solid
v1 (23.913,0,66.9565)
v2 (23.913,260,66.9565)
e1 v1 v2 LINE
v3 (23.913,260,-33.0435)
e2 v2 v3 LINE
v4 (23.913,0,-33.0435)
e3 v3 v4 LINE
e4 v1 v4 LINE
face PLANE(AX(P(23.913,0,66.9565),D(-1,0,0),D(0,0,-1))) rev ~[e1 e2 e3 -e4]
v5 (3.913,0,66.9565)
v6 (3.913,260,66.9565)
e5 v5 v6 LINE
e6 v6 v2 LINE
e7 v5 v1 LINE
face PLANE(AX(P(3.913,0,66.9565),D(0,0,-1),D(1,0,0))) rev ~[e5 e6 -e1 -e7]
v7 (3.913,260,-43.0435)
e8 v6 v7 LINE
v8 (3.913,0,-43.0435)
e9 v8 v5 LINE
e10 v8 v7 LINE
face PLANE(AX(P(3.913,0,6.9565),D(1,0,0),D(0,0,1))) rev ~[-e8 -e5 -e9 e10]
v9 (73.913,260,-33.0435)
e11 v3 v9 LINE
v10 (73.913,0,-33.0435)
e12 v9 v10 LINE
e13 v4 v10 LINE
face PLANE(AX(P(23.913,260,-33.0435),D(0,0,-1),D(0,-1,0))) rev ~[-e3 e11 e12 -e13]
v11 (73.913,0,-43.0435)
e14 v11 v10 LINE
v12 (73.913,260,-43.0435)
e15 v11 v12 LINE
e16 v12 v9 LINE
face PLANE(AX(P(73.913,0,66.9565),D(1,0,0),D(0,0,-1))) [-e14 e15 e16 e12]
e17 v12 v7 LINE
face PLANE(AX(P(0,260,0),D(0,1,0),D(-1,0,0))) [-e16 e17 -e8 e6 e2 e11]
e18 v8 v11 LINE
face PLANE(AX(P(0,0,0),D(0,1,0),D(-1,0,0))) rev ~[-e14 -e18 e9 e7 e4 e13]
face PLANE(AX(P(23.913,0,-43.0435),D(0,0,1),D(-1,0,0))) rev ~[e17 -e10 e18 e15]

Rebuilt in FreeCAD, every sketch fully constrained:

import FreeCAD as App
import Part
import Sketcher
from FreeCAD import Vector


def add_polygon(sketch, points):
    """Adds a closed chain of lines whose ends are joined by coincident constraints."""
    first, n = sketch.GeometryCount, len(points)
    for a, b in zip(points, points[1:] + points[:1]):
        sketch.addGeometry(Part.LineSegment(App.Vector(*a, 0), App.Vector(*b, 0)), False)
    for i in range(n):
        sketch.addConstraint(Sketcher.Constraint("Coincident", first + i, 2, first + (i + 1) % n, 1))

doc = App.newDocument("Part")
body = doc.addObject("PartDesign::Body", "Body")

sketch1 = body.newObject("Sketcher::SketchObject", "Sketch")
sketch1.AttachmentSupport = (doc.getObject("XZ_Plane"), [""])
sketch1.MapMode = "FlatFace"
add_polygon(sketch1, [(4, -43), (4, 67), (24, 67), (24, -43)])
sketch1.addConstraint([
    Sketcher.Constraint("Vertical", 0),
    Sketcher.Constraint("Horizontal", 1),
    Sketcher.Constraint("Vertical", 2),
    Sketcher.Constraint("Horizontal", 3),
    Sketcher.Constraint("DistanceX", 1, 1, 1, 2, 20.0),
    Sketcher.Constraint("DistanceY", 0, 1, 0, 2, 110.0),
    Sketcher.Constraint("DistanceX", -1, 1, 0, 2, 3.913),
    Sketcher.Constraint("DistanceY", -1, 1, 0, 2, 66.9565),
])
pad1 = body.newObject("PartDesign::Pad", "Pad")
pad1.Profile = sketch1
pad1.Length = 260
pad1.Reversed = True

sketch2 = body.newObject("Sketcher::SketchObject", "Sketch001")
sketch2.AttachmentSupport = (doc.getObject("YZ_Plane"), [""])
sketch2.MapMode = "FlatFace"
sketch2.AttachmentOffset = App.Placement(Vector(0, 0, 23.913), App.Rotation())
add_polygon(sketch2, [(0, -33), (0, -43), (260, -43), (260, -33)])
sketch2.addConstraint([
    Sketcher.Constraint("Vertical", 0),
    Sketcher.Constraint("Horizontal", 1),
    Sketcher.Constraint("Vertical", 2),
    Sketcher.Constraint("Horizontal", 3),
    Sketcher.Constraint("PointOnObject", 0, 2, -2),
    Sketcher.Constraint("DistanceY", 0, 2, 0, 1, 10.0),
    Sketcher.Constraint("DistanceX", 1, 1, 1, 2, 260.0),
    Sketcher.Constraint("DistanceY", 0, 2, -1, 1, 43.0435),
])
pad2 = body.newObject("PartDesign::Pad", "Pad001")
pad2.Profile = sketch2
pad2.Length = 50

doc.recompute()
